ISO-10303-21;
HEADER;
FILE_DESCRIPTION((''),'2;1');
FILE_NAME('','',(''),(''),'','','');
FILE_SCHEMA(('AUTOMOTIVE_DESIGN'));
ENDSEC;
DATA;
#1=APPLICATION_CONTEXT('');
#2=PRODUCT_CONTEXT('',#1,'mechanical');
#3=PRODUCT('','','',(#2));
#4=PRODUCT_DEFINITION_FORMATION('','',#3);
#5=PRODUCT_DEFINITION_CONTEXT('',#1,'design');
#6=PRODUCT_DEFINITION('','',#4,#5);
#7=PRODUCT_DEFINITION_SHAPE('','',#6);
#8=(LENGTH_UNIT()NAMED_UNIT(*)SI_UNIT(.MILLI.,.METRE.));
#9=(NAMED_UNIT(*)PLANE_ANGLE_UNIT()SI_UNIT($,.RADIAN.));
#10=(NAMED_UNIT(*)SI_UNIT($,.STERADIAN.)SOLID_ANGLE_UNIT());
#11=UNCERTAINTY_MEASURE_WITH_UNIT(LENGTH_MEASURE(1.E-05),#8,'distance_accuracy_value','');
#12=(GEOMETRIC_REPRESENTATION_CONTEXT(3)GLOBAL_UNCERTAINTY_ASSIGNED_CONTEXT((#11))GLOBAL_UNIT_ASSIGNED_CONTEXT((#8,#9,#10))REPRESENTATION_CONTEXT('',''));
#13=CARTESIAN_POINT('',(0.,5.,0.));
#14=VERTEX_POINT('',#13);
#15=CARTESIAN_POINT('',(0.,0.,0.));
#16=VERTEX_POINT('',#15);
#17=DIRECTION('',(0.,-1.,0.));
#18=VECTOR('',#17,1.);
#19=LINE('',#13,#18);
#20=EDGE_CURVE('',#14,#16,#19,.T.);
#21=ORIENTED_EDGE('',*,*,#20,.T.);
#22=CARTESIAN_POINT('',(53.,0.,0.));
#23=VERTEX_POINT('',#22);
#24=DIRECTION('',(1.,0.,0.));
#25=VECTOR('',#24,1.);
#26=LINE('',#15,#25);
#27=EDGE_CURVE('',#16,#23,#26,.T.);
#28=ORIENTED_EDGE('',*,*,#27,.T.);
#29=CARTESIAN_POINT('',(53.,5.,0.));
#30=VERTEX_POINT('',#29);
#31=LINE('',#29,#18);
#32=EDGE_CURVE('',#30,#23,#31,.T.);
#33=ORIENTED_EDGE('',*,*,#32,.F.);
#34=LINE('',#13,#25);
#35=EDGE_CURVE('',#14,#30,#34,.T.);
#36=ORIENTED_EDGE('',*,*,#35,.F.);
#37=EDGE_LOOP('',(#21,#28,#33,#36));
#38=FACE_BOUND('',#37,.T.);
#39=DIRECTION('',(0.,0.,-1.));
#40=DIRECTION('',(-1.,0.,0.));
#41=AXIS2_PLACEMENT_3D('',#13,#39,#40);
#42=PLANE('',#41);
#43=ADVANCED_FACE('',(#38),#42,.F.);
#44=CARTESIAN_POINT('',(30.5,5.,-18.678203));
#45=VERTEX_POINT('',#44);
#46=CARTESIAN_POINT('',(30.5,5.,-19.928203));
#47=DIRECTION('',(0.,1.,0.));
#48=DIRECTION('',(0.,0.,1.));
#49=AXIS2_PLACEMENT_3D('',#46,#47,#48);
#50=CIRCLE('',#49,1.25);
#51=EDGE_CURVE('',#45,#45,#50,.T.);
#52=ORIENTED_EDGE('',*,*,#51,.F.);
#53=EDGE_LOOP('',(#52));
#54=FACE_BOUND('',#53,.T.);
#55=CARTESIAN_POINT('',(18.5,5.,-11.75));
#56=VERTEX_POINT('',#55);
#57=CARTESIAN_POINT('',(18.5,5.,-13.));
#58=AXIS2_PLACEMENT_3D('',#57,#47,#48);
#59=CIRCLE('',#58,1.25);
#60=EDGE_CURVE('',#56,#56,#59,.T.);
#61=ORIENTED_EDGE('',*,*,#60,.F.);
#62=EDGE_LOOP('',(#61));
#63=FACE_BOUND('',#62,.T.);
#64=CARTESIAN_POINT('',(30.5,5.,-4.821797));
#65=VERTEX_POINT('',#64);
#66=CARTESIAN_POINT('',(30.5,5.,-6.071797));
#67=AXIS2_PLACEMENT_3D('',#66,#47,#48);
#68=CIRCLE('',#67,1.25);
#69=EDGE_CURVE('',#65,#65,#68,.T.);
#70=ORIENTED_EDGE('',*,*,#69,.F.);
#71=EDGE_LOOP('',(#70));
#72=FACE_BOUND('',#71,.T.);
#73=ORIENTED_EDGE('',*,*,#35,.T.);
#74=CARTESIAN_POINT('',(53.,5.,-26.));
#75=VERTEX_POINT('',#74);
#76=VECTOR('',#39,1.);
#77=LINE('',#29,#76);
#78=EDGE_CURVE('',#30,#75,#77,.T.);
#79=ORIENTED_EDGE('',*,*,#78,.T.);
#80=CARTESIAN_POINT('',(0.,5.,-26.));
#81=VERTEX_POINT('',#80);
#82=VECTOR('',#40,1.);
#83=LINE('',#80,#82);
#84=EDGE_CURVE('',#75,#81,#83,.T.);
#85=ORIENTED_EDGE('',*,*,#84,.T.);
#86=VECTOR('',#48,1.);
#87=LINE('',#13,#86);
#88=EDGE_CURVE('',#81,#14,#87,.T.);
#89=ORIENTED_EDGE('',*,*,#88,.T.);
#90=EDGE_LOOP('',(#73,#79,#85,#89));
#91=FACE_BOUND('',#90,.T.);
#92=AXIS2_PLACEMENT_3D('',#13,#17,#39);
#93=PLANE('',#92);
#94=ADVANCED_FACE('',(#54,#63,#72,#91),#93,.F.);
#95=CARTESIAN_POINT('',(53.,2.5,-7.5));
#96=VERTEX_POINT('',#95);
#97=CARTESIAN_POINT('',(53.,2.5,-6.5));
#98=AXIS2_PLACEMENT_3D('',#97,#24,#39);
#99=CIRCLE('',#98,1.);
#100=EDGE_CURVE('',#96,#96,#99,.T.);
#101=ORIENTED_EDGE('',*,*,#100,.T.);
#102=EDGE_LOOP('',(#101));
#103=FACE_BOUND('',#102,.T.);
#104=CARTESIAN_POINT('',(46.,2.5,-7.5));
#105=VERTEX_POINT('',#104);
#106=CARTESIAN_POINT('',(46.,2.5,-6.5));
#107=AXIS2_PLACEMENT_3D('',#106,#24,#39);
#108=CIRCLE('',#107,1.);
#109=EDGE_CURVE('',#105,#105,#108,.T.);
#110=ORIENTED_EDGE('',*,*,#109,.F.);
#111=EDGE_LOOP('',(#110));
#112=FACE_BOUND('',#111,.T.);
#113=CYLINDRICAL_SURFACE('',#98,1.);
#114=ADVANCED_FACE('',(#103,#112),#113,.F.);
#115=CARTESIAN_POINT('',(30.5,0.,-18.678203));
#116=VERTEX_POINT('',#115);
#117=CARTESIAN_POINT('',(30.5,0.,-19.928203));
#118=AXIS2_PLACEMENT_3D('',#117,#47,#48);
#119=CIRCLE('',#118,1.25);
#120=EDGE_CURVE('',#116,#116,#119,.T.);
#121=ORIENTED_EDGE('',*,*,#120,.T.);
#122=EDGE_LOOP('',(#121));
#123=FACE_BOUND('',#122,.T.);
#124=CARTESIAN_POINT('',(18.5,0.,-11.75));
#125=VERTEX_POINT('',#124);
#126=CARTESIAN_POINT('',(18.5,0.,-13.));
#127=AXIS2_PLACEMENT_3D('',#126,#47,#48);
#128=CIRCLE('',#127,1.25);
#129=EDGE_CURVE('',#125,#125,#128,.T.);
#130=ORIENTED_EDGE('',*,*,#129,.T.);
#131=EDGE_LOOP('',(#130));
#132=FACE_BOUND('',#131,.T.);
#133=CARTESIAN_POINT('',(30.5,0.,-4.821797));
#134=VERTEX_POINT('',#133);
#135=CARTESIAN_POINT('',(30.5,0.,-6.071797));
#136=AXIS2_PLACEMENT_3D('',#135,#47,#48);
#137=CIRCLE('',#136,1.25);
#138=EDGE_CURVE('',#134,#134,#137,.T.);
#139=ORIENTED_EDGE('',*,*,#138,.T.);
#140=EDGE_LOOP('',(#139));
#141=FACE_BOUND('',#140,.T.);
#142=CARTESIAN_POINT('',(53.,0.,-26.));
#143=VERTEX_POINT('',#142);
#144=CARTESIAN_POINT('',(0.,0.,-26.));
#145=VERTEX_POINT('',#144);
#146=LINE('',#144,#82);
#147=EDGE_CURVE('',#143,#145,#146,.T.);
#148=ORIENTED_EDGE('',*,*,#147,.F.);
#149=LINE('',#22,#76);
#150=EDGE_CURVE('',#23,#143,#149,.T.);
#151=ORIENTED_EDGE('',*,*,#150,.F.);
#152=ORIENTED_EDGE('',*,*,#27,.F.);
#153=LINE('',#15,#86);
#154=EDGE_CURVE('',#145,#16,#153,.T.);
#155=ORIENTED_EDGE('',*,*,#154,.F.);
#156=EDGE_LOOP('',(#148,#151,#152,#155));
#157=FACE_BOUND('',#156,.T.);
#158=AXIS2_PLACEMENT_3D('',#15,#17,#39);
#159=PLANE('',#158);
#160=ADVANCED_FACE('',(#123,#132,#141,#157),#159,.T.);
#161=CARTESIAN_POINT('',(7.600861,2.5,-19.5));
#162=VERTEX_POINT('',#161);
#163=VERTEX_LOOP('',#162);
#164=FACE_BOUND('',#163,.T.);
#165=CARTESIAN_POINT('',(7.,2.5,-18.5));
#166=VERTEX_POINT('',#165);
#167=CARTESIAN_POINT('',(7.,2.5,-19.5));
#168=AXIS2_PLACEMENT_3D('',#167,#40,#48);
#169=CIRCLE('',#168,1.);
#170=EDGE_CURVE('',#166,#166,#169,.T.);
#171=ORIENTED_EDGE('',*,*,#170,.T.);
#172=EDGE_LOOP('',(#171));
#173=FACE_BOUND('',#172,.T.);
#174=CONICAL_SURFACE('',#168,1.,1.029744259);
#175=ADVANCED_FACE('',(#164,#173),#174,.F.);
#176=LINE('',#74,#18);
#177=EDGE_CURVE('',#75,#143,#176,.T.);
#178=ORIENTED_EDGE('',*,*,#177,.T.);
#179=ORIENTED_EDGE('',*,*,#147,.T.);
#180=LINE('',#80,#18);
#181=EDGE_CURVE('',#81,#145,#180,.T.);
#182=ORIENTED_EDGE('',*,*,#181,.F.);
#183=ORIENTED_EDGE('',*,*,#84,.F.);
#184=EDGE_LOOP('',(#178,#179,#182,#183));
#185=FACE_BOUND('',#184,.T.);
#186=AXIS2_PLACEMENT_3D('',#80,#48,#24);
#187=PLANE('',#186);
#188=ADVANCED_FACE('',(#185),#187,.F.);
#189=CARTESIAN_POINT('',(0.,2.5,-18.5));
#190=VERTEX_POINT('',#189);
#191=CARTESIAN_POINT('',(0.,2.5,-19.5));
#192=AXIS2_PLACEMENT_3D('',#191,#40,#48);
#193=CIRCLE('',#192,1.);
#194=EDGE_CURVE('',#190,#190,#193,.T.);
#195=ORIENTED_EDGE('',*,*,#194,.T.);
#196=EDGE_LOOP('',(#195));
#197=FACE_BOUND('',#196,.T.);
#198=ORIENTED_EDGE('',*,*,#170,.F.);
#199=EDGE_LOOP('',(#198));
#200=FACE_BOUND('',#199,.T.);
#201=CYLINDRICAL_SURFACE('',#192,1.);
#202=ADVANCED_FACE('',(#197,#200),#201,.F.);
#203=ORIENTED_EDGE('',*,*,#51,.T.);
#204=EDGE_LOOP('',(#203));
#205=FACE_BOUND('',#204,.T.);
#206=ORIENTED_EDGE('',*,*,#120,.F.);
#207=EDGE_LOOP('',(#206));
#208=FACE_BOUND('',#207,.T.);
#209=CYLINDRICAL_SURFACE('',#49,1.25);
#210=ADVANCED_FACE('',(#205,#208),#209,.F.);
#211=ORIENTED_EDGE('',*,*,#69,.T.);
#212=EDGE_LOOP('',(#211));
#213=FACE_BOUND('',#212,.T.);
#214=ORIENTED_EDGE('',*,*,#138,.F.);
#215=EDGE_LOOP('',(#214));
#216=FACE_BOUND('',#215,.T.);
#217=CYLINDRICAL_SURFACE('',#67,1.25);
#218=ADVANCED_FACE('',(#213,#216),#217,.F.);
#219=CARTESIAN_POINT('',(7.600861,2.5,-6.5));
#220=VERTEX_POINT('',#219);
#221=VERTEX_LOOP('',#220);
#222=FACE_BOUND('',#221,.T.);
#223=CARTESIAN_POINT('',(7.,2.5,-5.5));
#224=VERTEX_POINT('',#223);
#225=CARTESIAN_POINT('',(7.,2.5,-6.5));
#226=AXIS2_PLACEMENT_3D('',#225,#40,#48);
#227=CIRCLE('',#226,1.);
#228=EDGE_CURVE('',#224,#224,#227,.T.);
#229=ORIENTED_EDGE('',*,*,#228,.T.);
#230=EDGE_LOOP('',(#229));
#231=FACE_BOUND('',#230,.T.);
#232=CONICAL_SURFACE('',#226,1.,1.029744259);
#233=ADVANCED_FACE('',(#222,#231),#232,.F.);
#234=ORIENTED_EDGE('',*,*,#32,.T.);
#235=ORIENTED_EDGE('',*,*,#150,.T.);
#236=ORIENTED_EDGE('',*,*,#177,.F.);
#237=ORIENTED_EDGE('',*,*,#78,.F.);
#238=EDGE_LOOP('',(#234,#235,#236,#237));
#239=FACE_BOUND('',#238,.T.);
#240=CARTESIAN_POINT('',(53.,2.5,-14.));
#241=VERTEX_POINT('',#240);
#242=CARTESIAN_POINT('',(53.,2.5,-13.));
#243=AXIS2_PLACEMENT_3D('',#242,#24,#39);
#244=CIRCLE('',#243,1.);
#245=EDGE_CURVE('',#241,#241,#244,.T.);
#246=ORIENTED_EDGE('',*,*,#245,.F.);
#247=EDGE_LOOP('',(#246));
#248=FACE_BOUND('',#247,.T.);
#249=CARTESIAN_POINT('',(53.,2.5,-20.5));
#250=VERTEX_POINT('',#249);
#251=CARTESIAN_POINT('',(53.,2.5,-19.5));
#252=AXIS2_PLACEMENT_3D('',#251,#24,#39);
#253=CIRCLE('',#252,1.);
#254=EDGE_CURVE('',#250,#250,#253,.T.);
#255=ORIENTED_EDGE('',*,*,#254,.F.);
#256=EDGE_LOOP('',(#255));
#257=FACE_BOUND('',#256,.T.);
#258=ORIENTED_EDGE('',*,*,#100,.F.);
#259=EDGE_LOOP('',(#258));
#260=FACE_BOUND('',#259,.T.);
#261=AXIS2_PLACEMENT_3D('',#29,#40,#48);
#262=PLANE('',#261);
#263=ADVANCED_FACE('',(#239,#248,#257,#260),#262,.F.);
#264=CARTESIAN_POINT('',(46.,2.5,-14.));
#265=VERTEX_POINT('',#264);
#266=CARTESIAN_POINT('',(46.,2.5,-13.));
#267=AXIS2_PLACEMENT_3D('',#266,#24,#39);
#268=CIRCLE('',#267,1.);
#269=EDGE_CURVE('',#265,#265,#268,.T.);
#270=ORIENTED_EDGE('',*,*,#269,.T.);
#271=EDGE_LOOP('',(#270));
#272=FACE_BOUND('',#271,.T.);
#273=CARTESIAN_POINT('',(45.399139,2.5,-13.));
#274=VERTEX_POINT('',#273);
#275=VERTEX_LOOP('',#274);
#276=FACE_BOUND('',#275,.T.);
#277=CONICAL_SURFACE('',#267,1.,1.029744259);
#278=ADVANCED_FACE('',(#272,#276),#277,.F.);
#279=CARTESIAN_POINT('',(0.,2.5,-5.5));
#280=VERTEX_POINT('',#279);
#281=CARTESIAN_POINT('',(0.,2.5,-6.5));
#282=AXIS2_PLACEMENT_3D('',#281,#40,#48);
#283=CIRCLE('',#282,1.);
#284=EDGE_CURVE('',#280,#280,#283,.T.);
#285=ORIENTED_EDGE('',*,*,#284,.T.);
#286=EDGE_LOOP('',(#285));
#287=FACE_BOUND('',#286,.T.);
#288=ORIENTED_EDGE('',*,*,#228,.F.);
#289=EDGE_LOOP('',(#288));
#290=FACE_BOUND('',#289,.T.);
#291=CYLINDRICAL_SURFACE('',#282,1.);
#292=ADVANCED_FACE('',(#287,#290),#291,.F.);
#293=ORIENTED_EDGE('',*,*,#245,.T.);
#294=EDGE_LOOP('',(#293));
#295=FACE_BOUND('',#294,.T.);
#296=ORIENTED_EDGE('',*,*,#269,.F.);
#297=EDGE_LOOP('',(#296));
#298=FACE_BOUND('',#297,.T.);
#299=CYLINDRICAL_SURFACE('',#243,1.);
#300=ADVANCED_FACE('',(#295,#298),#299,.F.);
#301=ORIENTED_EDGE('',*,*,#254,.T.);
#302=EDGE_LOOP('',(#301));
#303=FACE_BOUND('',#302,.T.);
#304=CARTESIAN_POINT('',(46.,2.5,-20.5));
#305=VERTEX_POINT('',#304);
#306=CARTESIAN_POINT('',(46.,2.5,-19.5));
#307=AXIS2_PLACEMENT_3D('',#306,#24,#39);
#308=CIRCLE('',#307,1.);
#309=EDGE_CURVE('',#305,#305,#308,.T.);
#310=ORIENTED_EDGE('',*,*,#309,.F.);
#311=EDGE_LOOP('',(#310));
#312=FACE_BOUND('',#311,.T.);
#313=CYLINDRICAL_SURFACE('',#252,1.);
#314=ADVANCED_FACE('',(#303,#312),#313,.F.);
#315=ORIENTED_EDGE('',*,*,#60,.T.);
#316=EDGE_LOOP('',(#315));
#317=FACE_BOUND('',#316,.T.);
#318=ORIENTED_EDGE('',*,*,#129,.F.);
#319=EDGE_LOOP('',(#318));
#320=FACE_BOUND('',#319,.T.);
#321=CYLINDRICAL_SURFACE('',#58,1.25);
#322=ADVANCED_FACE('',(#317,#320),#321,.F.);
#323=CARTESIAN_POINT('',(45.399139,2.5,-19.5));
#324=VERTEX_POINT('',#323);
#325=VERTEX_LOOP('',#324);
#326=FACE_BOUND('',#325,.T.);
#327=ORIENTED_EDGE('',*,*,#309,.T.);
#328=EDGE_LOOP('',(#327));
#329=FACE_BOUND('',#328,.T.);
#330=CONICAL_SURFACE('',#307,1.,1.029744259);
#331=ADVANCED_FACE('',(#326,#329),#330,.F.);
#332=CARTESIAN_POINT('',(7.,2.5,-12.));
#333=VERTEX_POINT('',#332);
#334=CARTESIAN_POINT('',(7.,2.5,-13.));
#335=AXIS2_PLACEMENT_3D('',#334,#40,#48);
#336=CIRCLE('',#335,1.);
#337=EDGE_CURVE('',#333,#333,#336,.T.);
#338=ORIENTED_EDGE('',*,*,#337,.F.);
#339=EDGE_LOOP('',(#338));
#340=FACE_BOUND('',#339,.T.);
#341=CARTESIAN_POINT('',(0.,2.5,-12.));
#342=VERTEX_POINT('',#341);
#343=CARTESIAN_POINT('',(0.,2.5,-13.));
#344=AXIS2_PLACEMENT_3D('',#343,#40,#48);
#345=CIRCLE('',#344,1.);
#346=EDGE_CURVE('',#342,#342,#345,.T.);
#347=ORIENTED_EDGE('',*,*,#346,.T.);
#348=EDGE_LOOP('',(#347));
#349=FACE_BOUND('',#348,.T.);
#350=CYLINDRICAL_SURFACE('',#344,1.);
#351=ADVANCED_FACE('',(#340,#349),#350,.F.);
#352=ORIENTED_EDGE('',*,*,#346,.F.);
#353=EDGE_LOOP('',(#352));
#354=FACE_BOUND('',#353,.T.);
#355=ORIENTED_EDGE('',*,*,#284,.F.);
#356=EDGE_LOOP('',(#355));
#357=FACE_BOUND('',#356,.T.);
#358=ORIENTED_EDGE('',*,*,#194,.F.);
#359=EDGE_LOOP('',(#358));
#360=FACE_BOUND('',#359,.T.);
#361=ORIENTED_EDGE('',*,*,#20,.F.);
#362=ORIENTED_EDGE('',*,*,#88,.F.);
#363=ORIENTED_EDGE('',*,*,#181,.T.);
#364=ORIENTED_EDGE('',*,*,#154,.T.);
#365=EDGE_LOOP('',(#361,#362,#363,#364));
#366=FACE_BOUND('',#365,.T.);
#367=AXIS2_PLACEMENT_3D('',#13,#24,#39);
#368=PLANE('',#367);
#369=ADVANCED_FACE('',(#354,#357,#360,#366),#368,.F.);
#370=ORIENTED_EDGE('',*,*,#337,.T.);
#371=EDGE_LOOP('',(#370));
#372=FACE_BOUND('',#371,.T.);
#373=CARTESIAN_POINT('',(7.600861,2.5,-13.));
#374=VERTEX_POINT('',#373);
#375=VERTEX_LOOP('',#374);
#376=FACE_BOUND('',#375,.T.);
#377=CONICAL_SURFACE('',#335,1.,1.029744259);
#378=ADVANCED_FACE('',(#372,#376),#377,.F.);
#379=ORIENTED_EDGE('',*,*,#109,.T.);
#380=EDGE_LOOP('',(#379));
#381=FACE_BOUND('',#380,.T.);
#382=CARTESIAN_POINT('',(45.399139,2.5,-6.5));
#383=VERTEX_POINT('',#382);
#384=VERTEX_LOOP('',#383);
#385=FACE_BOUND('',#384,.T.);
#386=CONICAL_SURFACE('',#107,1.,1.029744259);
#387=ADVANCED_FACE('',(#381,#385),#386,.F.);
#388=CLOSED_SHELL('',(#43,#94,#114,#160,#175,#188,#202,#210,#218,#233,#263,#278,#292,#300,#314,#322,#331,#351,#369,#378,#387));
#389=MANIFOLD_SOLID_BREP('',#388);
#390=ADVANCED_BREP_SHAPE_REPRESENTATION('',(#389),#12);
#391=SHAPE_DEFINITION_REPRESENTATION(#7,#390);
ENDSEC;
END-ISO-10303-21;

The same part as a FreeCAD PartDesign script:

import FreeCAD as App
import Part
import Sketcher


def add_polygon(sketch, points):
    """Adds a closed chain of lines whose ends are joined by coincident constraints."""
    first, n = sketch.GeometryCount, len(points)
    for a, b in zip(points, points[1:] + points[:1]):
        sketch.addGeometry(Part.LineSegment(App.Vector(*a, 0), App.Vector(*b, 0)), False)
    for i in range(n):
        sketch.addConstraint(Sketcher.Constraint("Coincident", first + i, 2, first + (i + 1) % n, 1))

doc = App.newDocument("Part")
body = doc.addObject("PartDesign::Body", "Body")

sketch1 = doc.addObject("Sketcher::SketchObject", "Sketch")
body.addObject(sketch1)
sketch1.AttachmentSupport = (doc.XZ_Plane, [""])
sketch1.MapMode = "FlatFace"
add_polygon(sketch1, [(0, -26), (0, 0), (53, 0), (53, -26)])
sketch1.addConstraint(Sketcher.Constraint("Vertical", 0))
sketch1.addConstraint(Sketcher.Constraint("Horizontal", 1))
sketch1.addConstraint(Sketcher.Constraint("Vertical", 2))
sketch1.addConstraint(Sketcher.Constraint("Horizontal", 3))
sketch1.addConstraint(Sketcher.Constraint("Coincident", 0, 2, -1, 1))
sketch1.addConstraint(Sketcher.Constraint("DistanceX", 1, 1, 1, 2, 53.0))
sketch1.addConstraint(Sketcher.Constraint("DistanceY", 0, 1, 0, 2, 26.0))
pad1 = doc.addObject("PartDesign::Pad", "Pad")
body.addObject(pad1)
pad1.Profile = sketch1
pad1.Length = 5
pad1.Reversed = True

sketch2 = doc.addObject("Sketcher::SketchObject", "Sketch001")
body.addObject(sketch2)
sketch2.AttachmentSupport = (doc.YZ_Plane, [""])
sketch2.MapMode = "FlatFace"
sketch2.AttachmentOffset = App.Placement(App.Vector(0, 0, 53), App.Rotation())
sketch2.addGeometry(Part.Circle(App.Vector(2.5, -6.5, 0), App.Vector(0, 0, 1), 1), False)
sketch2.addGeometry(Part.Circle(App.Vector(2.5, -13, 0), App.Vector(0, 0, 1), 1), False)
sketch2.addGeometry(Part.Circle(App.Vector(2.5, -19.5, 0), App.Vector(0, 0, 1), 1), False)
sketch2.addConstraint(Sketcher.Constraint("Equal", 0, 1))
sketch2.addConstraint(Sketcher.Constraint("Equal", 1, 2))
sketch2.addConstraint(Sketcher.Constraint("Vertical", 0, 3, 1, 3))
sketch2.addConstraint(Sketcher.Constraint("Vertical", 1, 3, 2, 3))
sketch2.addConstraint(Sketcher.Constraint("Diameter", 0, 2.0))
sketch2.addConstraint(Sketcher.Constraint("DistanceY", 1, 3, -1, 1, 13.0))
sketch2.addConstraint(Sketcher.Constraint("DistanceY", 2, 3, 0, 3, 13.0))
sketch2.addConstraint(Sketcher.Constraint("DistanceX", -1, 1, 0, 3, 2.5))
sketch2.addConstraint(Sketcher.Constraint("DistanceY", 0, 3, -1, 1, 6.5))
doc.recompute()
hole = doc.addObject("PartDesign::Hole", "Hole")
body.addObject(hole)
hole.Profile = sketch2
hole.ThreadType = "None"
hole.Diameter = 2
hole.DepthType = "Dimension"
hole.Depth = 7
hole.DrillPoint = "Angled"
hole.DrillPointAngle = 118

sketch3 = doc.addObject("Sketcher::SketchObject", "Sketch002")
body.addObject(sketch3)
sketch3.AttachmentSupport = (doc.YZ_Plane, [""])
sketch3.MapMode = "FlatFace"
sketch3.addGeometry(Part.Circle(App.Vector(2.5, -19.5, 0), App.Vector(0, 0, 1), 1), False)
sketch3.addGeometry(Part.Circle(App.Vector(2.5, -13, 0), App.Vector(0, 0, 1), 1), False)
sketch3.addGeometry(Part.Circle(App.Vector(2.5, -6.5, 0), App.Vector(0, 0, 1), 1), False)
sketch3.addConstraint(Sketcher.Constraint("Equal", 0, 1))
sketch3.addConstraint(Sketcher.Constraint("Equal", 1, 2))
sketch3.addConstraint(Sketcher.Constraint("Vertical", 0, 3, 1, 3))
sketch3.addConstraint(Sketcher.Constraint("Vertical", 1, 3, 2, 3))
sketch3.addConstraint(Sketcher.Constraint("Diameter", 0, 2.0))
sketch3.addConstraint(Sketcher.Constraint("DistanceY", 1, 3, -1, 1, 13.0))
sketch3.addConstraint(Sketcher.Constraint("DistanceY", 0, 3, 2, 3, 13.0))
sketch3.addConstraint(Sketcher.Constraint("DistanceX", -1, 1, 0, 3, 2.5))
sketch3.addConstraint(Sketcher.Constraint("DistanceY", 0, 3, -1, 1, 19.5))
doc.recompute()
hole2 = doc.addObject("PartDesign::Hole", "Hole001")
body.addObject(hole2)
hole2.Profile = sketch3
hole2.ThreadType = "None"
hole2.Diameter = 2
hole2.DepthType = "Dimension"
hole2.Depth = 7
hole2.DrillPoint = "Angled"
hole2.DrillPointAngle = 118
hole2.Reversed = True

sketch4 = doc.addObject("Sketcher::SketchObject", "Sketch003")
body.addObject(sketch4)
sketch4.AttachmentSupport = (doc.XZ_Plane, [""])
sketch4.MapMode = "FlatFace"
sketch4.AttachmentOffset = App.Placement(App.Vector(0, 0, -5), App.Rotation())
sketch4.addGeometry(Part.Circle(App.Vector(18.5, -13, 0), App.Vector(0, 0, 1), 1.2), False)
sketch4.addGeometry(Part.Circle(App.Vector(30.5, -19.9, 0), App.Vector(0, 0, 1), 1.2), False)
sketch4.addGeometry(Part.Circle(App.Vector(30.5, -6.1, 0), App.Vector(0, 0, 1), 1.2), False)
sketch4.addConstraint(Sketcher.Constraint("Equal", 0, 1))
sketch4.addConstraint(Sketcher.Constraint("Equal", 1, 2))
sketch4.addConstraint(Sketcher.Constraint("Vertical", 1, 3, 2, 3))
sketch4.addConstraint(Sketcher.Constraint("Diameter", 0, 2.5))
sketch4.addConstraint(Sketcher.Constraint("DistanceY", 0, 3, -1, 1, 13.0))
sketch4.addConstraint(Sketcher.Constraint("DistanceX", 0, 3, 1, 3, 12.0))
sketch4.addConstraint(Sketcher.Constraint("DistanceX", -1, 1, 0, 3, 18.5))
sketch4.addConstraint(Sketcher.Constraint("DistanceY", 1, 3, -1, 1, 19.928203))
sketch4.addConstraint(Sketcher.Constraint("DistanceY", 2, 3, -1, 1, 6.071797))
doc.recompute()
hole3 = doc.addObject("PartDesign::Hole", "Hole002")
body.addObject(hole3)
hole3.Profile = sketch4
hole3.ThreadType = "None"
hole3.Diameter = 2.5
hole3.DepthType = "Dimension"
hole3.Depth = 5
hole3.DrillPoint = "Angled"
hole3.DrillPointAngle = 118
hole3.Reversed = True

doc.recompute()
